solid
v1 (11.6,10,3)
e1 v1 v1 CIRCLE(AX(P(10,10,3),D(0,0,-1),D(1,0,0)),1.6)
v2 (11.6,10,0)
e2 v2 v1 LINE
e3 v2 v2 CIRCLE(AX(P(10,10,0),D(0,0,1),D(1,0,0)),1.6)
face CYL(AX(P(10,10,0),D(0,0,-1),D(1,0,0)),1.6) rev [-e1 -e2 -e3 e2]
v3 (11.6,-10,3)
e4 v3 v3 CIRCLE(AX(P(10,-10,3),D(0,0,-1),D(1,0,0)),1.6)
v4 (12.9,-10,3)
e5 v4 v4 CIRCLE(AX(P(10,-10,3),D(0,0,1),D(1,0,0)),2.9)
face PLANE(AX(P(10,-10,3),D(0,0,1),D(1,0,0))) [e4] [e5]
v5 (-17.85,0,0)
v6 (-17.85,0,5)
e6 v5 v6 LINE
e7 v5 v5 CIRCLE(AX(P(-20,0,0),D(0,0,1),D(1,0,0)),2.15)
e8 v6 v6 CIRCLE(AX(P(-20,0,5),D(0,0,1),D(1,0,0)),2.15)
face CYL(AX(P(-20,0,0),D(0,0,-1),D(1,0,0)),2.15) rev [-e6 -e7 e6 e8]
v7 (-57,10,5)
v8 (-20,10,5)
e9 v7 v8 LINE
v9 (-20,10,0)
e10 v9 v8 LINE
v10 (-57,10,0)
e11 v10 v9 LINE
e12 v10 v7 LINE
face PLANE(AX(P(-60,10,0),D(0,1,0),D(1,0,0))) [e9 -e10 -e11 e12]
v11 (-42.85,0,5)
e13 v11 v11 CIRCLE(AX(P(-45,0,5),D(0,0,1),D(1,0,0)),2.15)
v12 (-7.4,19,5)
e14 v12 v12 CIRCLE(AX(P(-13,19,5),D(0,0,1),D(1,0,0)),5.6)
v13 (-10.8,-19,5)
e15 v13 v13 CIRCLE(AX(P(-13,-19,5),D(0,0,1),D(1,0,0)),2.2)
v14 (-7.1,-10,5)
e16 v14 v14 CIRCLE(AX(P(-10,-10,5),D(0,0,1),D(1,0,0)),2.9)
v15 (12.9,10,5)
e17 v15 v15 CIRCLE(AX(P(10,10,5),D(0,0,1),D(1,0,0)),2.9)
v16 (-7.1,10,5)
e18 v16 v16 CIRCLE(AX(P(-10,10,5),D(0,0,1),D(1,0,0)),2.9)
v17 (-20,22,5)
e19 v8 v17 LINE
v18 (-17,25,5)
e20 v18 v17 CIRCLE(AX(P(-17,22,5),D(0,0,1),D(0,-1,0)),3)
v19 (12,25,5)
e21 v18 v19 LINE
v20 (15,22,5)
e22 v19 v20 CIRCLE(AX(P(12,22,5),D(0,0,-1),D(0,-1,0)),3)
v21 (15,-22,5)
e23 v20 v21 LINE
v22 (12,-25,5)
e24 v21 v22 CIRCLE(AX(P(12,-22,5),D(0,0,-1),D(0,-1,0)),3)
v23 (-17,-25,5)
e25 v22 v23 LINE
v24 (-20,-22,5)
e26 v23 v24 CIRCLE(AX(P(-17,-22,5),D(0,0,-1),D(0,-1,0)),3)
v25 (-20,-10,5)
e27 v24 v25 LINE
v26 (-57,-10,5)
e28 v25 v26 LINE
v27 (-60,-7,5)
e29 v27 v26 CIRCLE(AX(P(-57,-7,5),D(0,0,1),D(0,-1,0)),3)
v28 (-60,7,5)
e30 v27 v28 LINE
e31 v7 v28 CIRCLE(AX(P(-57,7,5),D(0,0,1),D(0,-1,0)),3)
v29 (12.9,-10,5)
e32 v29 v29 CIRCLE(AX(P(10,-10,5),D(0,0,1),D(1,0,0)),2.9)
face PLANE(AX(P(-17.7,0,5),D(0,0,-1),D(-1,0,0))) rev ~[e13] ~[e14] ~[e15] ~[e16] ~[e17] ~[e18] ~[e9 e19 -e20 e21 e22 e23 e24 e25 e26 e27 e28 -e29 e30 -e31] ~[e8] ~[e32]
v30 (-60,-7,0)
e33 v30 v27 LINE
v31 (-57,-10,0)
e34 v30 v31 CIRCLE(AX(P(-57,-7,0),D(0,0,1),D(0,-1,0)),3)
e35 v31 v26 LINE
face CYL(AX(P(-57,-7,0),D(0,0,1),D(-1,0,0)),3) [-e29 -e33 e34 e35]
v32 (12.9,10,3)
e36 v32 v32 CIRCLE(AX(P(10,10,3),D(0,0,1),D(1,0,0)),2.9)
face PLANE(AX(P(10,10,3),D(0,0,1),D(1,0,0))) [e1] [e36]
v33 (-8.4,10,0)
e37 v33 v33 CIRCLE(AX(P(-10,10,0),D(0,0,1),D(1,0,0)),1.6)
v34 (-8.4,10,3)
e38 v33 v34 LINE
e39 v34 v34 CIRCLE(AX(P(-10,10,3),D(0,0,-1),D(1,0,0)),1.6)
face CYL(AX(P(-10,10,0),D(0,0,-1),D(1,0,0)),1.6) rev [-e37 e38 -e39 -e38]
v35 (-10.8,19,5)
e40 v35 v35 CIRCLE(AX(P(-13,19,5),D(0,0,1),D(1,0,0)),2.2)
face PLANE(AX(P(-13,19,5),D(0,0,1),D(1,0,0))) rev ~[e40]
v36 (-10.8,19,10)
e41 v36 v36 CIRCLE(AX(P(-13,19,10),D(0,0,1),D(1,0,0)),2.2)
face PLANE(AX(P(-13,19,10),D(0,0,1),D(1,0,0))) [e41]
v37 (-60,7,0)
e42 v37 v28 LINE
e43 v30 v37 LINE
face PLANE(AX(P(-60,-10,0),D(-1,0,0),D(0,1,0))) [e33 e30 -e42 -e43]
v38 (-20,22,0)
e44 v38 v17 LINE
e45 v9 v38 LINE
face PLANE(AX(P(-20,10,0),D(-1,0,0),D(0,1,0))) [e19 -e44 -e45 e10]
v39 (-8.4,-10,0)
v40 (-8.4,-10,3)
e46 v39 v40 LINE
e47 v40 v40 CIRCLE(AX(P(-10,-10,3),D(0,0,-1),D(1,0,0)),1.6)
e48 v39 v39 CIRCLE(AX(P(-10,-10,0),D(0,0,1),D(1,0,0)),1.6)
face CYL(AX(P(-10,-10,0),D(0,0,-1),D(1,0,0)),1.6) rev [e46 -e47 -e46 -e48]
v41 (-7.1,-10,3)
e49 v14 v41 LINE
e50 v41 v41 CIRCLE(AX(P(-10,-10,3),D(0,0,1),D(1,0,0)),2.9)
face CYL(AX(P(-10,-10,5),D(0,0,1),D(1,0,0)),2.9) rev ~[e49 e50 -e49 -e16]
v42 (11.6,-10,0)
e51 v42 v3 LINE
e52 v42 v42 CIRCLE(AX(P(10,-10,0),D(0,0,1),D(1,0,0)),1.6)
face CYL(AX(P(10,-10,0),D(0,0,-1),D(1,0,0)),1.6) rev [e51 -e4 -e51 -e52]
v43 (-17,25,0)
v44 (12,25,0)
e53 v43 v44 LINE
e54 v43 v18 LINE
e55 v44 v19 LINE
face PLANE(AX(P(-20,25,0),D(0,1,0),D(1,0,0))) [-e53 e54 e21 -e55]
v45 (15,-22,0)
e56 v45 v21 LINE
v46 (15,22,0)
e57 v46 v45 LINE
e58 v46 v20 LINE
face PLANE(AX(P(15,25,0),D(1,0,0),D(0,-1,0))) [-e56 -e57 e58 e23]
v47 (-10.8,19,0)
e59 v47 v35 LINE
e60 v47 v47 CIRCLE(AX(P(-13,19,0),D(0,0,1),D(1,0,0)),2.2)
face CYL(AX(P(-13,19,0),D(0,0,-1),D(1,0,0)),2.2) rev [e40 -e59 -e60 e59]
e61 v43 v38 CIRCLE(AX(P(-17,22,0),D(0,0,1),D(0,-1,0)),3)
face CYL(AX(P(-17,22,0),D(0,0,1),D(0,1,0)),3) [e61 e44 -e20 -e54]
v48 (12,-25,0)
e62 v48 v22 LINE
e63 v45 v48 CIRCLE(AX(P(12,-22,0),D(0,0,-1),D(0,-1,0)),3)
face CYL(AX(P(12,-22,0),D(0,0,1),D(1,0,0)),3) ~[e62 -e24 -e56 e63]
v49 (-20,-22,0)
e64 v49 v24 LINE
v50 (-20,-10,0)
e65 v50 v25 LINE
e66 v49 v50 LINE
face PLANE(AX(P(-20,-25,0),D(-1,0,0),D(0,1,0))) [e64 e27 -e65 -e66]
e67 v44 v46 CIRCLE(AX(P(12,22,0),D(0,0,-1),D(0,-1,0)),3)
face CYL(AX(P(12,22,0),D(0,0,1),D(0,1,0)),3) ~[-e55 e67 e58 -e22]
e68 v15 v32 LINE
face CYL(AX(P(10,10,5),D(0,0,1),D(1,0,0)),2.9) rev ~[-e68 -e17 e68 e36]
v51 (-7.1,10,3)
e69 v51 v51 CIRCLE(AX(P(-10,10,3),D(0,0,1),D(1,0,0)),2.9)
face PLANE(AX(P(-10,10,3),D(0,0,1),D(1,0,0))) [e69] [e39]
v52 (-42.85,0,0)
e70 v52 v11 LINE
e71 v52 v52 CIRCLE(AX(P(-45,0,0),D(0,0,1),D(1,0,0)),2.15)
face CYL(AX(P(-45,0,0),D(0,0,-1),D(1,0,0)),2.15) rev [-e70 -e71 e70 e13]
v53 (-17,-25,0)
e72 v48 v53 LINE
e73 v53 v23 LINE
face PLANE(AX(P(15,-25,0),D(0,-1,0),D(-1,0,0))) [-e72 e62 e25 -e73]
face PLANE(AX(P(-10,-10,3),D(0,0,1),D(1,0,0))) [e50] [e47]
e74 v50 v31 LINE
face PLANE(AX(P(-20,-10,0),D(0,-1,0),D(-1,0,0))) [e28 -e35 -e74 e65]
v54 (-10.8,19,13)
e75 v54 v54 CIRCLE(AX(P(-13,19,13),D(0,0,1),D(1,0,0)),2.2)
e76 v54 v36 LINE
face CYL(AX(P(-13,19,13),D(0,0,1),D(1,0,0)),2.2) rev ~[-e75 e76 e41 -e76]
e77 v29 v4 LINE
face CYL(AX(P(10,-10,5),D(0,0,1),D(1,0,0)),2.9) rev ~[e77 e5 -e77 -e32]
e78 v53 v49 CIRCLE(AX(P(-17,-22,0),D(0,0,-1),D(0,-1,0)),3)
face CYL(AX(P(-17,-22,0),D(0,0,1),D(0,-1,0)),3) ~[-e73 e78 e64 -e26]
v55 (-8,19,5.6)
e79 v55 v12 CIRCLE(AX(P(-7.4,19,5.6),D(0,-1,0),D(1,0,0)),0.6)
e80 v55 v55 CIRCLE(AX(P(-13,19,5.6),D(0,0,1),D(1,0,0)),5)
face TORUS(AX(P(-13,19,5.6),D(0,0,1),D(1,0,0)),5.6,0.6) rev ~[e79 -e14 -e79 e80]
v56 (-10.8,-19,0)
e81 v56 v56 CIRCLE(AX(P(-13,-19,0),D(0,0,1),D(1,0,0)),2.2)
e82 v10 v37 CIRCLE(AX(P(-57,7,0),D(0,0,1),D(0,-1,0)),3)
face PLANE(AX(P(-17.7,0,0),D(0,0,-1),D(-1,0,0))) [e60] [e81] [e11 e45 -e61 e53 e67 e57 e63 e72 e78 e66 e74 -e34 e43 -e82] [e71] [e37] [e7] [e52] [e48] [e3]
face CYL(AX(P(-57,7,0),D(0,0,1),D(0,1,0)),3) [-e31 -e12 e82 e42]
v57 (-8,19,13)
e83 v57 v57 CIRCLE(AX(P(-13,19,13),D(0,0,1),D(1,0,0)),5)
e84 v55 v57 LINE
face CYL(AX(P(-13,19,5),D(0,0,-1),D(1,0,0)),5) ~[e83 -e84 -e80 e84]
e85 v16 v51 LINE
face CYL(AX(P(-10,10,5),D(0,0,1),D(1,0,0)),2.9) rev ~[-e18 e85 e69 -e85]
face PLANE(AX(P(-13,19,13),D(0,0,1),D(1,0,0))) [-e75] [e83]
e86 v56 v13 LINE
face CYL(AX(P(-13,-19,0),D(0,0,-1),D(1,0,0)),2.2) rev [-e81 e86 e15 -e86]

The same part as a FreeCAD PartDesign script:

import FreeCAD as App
import Part
import Sketcher

V = App.Vector


def edges_at(feature, points):
    """Names of the edges that pass closest to the given points."""
    edges = feature.Shape.Edges
    near = lambda p: min(range(len(edges)), key=lambda i: edges[i].distToShape(Part.Vertex(*p))[0])
    return sorted({f"Edge{near(p) + 1}" for p in points})


def add_polygon(sketch, points):
    """Adds a closed chain of lines whose ends are joined by coincident constraints."""
    first, n = sketch.GeometryCount, len(points)
    for a, b in zip(points, points[1:] + points[:1]):
        sketch.addGeometry(Part.LineSegment(App.Vector(*a, 0), App.Vector(*b, 0)), False)
    for i in range(n):
        sketch.addConstraint(Sketcher.Constraint("Coincident", first + i, 2, first + (i + 1) % n, 1))

doc = App.newDocument("Part")
body = doc.addObject("PartDesign::Body", "Body")

sketch1 = body.newObject("Sketcher::SketchObject", "Sketch")
sketch1.AttachmentSupport = (doc.getObject("XY_Plane"), [""])
sketch1.MapMode = "FlatFace"
add_polygon(sketch1, [(15, 25), (-20, 25), (-20, 10), (-60, 10), (-60, -10), (-20, -10), (-20, -25), (15, -25)])
sketch1.addGeometry(Part.Circle(V(-13, -19, 0), V(0, 0, 1), 2.2), False)
sketch1.addGeometry(Part.Circle(V(10, -10, 0), V(0, 0, 1), 1.6), False)
sketch1.addGeometry(Part.Circle(V(-10, -10, 0), V(0, 0, 1), 1.6), False)
sketch1.addGeometry(Part.Circle(V(10, 10, 0), V(0, 0, 1), 1.6), False)
sketch1.addGeometry(Part.Circle(V(-10, 10, 0), V(0, 0, 1), 1.6), False)
sketch1.addGeometry(Part.Circle(V(-13, 19, 0), V(0, 0, 1), 2.2), False)
sketch1.addGeometry(Part.Circle(V(-20, 0, 0), V(0, 0, 1), 2.1), False)
sketch1.addGeometry(Part.Circle(V(-45, 0, 0), V(0, 0, 1), 2.1), False)
sketch1.addConstraint([
    Sketcher.Constraint("Horizontal", 0),
    Sketcher.Constraint("Vertical", 1),
    Sketcher.Constraint("Horizontal", 2),
    Sketcher.Constraint("Vertical", 3),
    Sketcher.Constraint("Horizontal", 4),
    Sketcher.Constraint("Vertical", 5),
    Sketcher.Constraint("Horizontal", 6),
    Sketcher.Constraint("Vertical", 7),
    Sketcher.Constraint("Equal", 9, 10),
    Sketcher.Constraint("Equal", 10, 11),
    Sketcher.Constraint("Equal", 11, 12),
    Sketcher.Constraint("Equal", 8, 13),
    Sketcher.Constraint("Equal", 14, 15),
    Sketcher.Constraint("Symmetric", 10, 3, 11, 3, -1, 1),
    Sketcher.Constraint("Symmetric", 9, 3, 12, 3, -1, 1),
    Sketcher.Constraint("Symmetric", 9, 3, 10, 3, -2),
    Sketcher.Constraint("Symmetric", 8, 3, 13, 3, -1),
    Sketcher.Constraint("Symmetric", 1, 2, 4, 2, -1),
    Sketcher.Constraint("PointOnObject", 14, 3, -1),
    Sketcher.Constraint("PointOnObject", 15, 3, -1),
    Sketcher.Constraint("Horizontal", 12, 3, 1, 2),
    Sketcher.Constraint("Vertical", 14, 3, 0, 2),
    Sketcher.Constraint("Equal", 1, 5),
    Sketcher.Constraint("Diameter", 8, 4.4),
    Sketcher.Constraint("Diameter", 9, 3.2),
    Sketcher.Constraint("Diameter", 14, 4.3),
    Sketcher.Constraint("DistanceX", 0, 2, 0, 1, 35.0),
    Sketcher.Constraint("DistanceX", 2, 2, 2, 1, 40.0),
    Sketcher.Constraint("DistanceY", 1, 2, 1, 1, 15.0),
    Sketcher.Constraint("DistanceY", 3, 2, 3, 1, 20.0),
    Sketcher.Constraint("DistanceX", 8, 3, -1, 1, 13.0),
    Sketcher.Constraint("DistanceY", 8, 3, -1, 1, 19.0),
    Sketcher.Constraint("DistanceX", -1, 1, 9, 3, 10.0),
    Sketcher.Constraint("DistanceX", 14, 3, -1, 1, 20.0),
    Sketcher.Constraint("DistanceX", 15, 3, -1, 1, 45.0),
])
pad1 = body.newObject("PartDesign::Pad", "Pad")
pad1.Profile = sketch1
pad1.Length = 5

sketch2 = body.newObject("Sketcher::SketchObject", "Sketch001")
sketch2.AttachmentSupport = (doc.getObject("XY_Plane"), [""])
sketch2.MapMode = "FlatFace"
sketch2.AttachmentOffset = App.Placement(V(0, 0, 5), App.Rotation())
sketch2.addGeometry([
    Part.Circle(V(-10, 10, 0), V(0, 0, 1), 2.9),
    Part.Circle(V(10, 10, 0), V(0, 0, 1), 2.9),
    Part.Circle(V(10, -10, 0), V(0, 0, 1), 2.9),
    Part.Circle(V(-10, -10, 0), V(0, 0, 1), 2.9),
], False)
sketch2.addConstraint([
    Sketcher.Constraint("Equal", 0, 1),
    Sketcher.Constraint("Equal", 1, 2),
    Sketcher.Constraint("Equal", 2, 3),
    Sketcher.Constraint("Symmetric", 0, 3, 2, 3, -1, 1),
    Sketcher.Constraint("Symmetric", 1, 3, 3, 3, -1, 1),
    Sketcher.Constraint("Symmetric", 0, 3, 1, 3, -2),
    Sketcher.Constraint("Diameter", 0, 5.8),
    Sketcher.Constraint("DistanceX", 0, 3, -1, 1, 10.0),
    Sketcher.Constraint("DistanceY", -1, 1, 0, 3, 10.0),
])
pocket1 = body.newObject("PartDesign::Pocket", "Pocket")
pocket1.Profile = sketch2
pocket1.Length = 2

sketch3 = body.newObject("Sketcher::SketchObject", "Sketch002")
sketch3.AttachmentSupport = (doc.getObject("XY_Plane"), [""])
sketch3.MapMode = "FlatFace"
sketch3.AttachmentOffset = App.Placement(V(0, 0, 5), App.Rotation())
sketch3.addGeometry(Part.Circle(V(-13, 19, 0), V(0, 0, 1), 5), False)
sketch3.addConstraint([
    Sketcher.Constraint("Diameter", 0, 10.0),
    Sketcher.Constraint("DistanceX", 0, 3, -1, 1, 13.0),
    Sketcher.Constraint("DistanceY", -1, 1, 0, 3, 19.0),
])
pad2 = body.newObject("PartDesign::Pad", "Pad001")
pad2.Profile = sketch3
pad2.Length = 8

sketch4 = body.newObject("Sketcher::SketchObject", "Sketch003")
sketch4.AttachmentSupport = (doc.getObject("XY_Plane"), [""])
sketch4.MapMode = "FlatFace"
sketch4.AttachmentOffset = App.Placement(V(0, 0, 13), App.Rotation())
sketch4.addGeometry(Part.Circle(V(-13, 19, 0), V(0, 0, 1), 2.2), False)
sketch4.addConstraint([
    Sketcher.Constraint("Diameter", 0, 4.4),
    Sketcher.Constraint("DistanceX", 0, 3, -1, 1, 13.0),
    Sketcher.Constraint("DistanceY", -1, 1, 0, 3, 19.0),
])
pocket2 = body.newObject("PartDesign::Pocket", "Pocket001")
pocket2.Profile = sketch4
pocket2.Length = 3
doc.recompute()

fillet = body.newObject("PartDesign::Fillet", "Fillet")
fillet.Base = (pocket2, edges_at(pocket2, [(-18, 19, 5)]))
fillet.Radius = 0.6
doc.recompute()

fillet2 = body.newObject("PartDesign::Fillet", "Fillet001")
fillet2.Base = (fillet, edges_at(fillet, [
    (-20, -25, 2.5),
    (-20, 25, 2.5),
    (15, 25, 2.5),
    (15, -25, 2.5),
]))
fillet2.Radius = 3
doc.recompute()

fillet3 = body.newObject("PartDesign::Fillet", "Fillet002")
fillet3.Base = (fillet2, edges_at(fillet2, [(-60, 10, 2.5), (-60, -10, 2.5)]))
fillet3.Radius = 3

doc.recompute()
